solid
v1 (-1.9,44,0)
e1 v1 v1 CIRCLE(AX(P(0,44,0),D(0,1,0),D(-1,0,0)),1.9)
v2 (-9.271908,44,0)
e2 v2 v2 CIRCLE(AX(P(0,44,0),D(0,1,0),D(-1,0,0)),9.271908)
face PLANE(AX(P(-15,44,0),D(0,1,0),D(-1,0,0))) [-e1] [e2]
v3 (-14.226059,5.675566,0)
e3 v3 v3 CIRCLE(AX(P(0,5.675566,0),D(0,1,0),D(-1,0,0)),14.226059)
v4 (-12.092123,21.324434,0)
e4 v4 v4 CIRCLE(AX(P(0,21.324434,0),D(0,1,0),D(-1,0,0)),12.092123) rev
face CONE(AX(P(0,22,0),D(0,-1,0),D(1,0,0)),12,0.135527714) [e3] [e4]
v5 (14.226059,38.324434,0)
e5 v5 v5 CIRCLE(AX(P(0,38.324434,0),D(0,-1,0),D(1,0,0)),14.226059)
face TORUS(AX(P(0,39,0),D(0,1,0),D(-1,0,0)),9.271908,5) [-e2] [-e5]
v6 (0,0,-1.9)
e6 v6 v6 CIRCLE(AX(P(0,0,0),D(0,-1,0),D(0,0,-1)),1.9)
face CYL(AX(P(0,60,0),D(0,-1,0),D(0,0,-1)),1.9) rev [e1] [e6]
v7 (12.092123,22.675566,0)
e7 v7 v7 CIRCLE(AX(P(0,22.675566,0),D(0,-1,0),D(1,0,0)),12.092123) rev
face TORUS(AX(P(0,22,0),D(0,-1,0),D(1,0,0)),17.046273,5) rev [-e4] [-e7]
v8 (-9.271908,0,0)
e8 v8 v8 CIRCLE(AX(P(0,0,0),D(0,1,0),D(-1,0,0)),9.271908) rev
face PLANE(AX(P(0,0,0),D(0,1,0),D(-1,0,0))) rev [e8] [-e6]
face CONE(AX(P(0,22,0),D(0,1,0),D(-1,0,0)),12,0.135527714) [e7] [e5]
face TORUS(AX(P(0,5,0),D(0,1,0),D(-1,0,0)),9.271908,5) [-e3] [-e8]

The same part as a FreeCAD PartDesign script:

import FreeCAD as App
import Part
import Sketcher
from FreeCAD import Vector
Q = App.Units.Quantity


def edges_at(feature, points):
    """Names of the edges that pass closest to the given points."""
    edges = feature.Shape.Edges
    near = lambda p: min(range(len(edges)), key=lambda i: edges[i].distToShape(Part.Vertex(*p))[0])
    return sorted({f"Edge{near(p) + 1}" for p in points})

doc = App.newDocument("Part")
body = doc.addObject("PartDesign::Body", "Body")

sketch1 = body.newObject("Sketcher::SketchObject", "Sketch")
sketch1.AttachmentSupport = (doc.getObject("XY_Plane"), [""])
sketch1.MapMode = "FlatFace"
sketch1.addGeometry([
    Part.LineSegment(Vector(0, 0, 0), Vector(0, 44, 0)),
    Part.LineSegment(Vector(0, 44, 0), Vector(-15, 44, 0)),
    Part.LineSegment(Vector(-15, 44, 0), Vector(-12, 22, 0)),
    Part.LineSegment(Vector(-12, 22, 0), Vector(-15, 0, 0)),
    Part.LineSegment(Vector(-15, 0, 0), Vector(0, 0, 0)),
], False)
sketch1.addConstraint([
    Sketcher.Constraint("Coincident", 0, 2, 1, 1),
    Sketcher.Constraint("Coincident", 1, 2, 2, 1),
    Sketcher.Constraint("Coincident", 2, 2, 3, 1),
    Sketcher.Constraint("Coincident", 3, 2, 4, 1),
    Sketcher.Constraint("Coincident", 4, 2, 0, 1),
    Sketcher.Constraint("Vertical", 0),
    Sketcher.Constraint("Horizontal", 1),
    Sketcher.Constraint("Horizontal", 4),
    Sketcher.Constraint("Coincident", 4, 2, -1, 1),
    Sketcher.Constraint("Vertical", 1, 2, 3, 2),
    Sketcher.Constraint("Equal", 2, 3),
    Sketcher.Constraint("DistanceX", 1, 2, 1, 1, Q("15 mm")),
    Sketcher.Constraint("DistanceY", 0, 1, 0, 2, Q("44 mm")),
    Sketcher.Constraint("DistanceX", 2, 2, -1, 1, Q("12 mm")),
])
revolution = body.newObject("PartDesign::Revolution", "Revolution")
revolution.Profile = sketch1
revolution.ReferenceAxis = (sketch1, ["V_Axis"])
revolution.Angle = 360

sketch2 = body.newObject("Sketcher::SketchObject", "Sketch001")
sketch2.AttachmentSupport = (doc.getObject("XZ_Plane"), [""])
sketch2.MapMode = "FlatFace"
sketch2.addGeometry(Part.Circle(Vector(0, 0, 0), Vector(0, 0, 1), 1.9), False)
sketch2.addConstraint([
    Sketcher.Constraint("Coincident", 0, 3, -1, 1),
    Sketcher.Constraint("Diameter", 0, Q("3.8 mm")),
])
pocket1 = body.newObject("PartDesign::Pocket", "Pocket")
pocket1.Profile = sketch2
pocket1.Length = 60
doc.recompute()

fillet = body.newObject("PartDesign::Fillet", "Fillet")
fillet.Base = (pocket1, edges_at(pocket1, [(-15, 44, 0), (-15, 0, 0), (-12, 22, 0)]))
fillet.Radius = 5

doc.recompute()
